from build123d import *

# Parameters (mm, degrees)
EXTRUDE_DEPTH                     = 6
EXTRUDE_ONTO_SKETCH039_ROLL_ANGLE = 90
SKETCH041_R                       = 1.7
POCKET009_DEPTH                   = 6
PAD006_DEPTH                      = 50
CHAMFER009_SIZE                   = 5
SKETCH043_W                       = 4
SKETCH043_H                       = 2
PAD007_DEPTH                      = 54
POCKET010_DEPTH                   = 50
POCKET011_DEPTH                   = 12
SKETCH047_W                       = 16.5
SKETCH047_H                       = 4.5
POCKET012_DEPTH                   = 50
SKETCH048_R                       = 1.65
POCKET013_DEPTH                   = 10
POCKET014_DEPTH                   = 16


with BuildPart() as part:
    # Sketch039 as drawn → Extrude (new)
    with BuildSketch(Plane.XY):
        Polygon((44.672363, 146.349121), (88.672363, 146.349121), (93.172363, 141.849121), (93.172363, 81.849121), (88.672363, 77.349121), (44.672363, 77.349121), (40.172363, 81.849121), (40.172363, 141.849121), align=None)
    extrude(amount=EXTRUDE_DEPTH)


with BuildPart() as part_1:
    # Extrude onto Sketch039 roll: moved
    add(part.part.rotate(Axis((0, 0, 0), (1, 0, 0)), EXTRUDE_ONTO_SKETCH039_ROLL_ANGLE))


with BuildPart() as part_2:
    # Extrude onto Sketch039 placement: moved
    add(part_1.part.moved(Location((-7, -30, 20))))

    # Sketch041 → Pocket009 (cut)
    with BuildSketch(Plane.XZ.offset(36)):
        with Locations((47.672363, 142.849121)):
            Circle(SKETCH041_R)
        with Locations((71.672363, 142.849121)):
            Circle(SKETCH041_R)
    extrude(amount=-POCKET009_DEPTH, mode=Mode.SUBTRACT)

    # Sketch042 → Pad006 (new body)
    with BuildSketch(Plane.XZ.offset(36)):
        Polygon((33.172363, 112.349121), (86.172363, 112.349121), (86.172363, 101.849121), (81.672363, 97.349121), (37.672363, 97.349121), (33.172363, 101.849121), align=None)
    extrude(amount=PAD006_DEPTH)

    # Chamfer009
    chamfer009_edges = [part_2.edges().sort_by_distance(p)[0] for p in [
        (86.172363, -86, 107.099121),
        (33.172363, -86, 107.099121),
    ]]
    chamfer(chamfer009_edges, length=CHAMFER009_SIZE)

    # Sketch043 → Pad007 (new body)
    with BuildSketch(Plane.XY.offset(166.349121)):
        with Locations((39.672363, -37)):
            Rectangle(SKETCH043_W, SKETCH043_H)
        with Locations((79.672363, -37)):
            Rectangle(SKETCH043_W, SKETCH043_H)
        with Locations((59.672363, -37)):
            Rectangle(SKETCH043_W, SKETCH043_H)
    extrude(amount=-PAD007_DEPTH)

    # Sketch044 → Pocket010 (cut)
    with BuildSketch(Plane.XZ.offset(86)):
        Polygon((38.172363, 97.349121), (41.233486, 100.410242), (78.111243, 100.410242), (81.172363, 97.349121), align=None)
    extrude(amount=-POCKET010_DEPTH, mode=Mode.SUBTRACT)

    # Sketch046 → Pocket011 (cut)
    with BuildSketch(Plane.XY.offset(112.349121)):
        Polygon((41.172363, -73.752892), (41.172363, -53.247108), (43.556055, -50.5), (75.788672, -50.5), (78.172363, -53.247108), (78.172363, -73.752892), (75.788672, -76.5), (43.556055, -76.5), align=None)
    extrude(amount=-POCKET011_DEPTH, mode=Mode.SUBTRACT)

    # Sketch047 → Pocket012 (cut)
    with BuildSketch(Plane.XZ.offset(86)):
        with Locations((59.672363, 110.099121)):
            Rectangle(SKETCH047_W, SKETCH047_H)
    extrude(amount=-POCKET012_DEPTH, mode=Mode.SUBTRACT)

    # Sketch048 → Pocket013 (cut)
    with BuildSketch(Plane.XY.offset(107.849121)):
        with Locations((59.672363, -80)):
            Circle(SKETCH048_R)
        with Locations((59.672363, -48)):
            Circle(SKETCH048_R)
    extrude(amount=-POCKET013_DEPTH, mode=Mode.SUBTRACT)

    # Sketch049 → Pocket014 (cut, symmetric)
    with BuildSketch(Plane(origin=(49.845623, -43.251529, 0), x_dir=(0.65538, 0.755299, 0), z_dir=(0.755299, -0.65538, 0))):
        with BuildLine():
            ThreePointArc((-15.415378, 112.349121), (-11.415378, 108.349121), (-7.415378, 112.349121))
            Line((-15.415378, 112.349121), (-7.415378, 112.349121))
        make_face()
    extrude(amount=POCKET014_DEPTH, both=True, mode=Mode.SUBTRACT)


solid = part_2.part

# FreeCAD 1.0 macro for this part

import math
import FreeCAD as App
import Part
import Sketcher
from FreeCAD import Vector
Q = App.Units.Quantity


def edges_at(feature, points):
    """Names of the edges that pass closest to the given points."""
    edges = feature.Shape.Edges
    near = lambda p: min(range(len(edges)), key=lambda i: edges[i].distToShape(Part.Vertex(*p))[0])
    return sorted({f"Edge{near(p) + 1}" for p in points})

doc = App.newDocument("Part")
body = doc.addObject("PartDesign::Body", "Body")

# Sketch on XY plane
sketch1 = doc.addObject("Sketcher::SketchObject", "Sketch")
body.addObject(sketch1)
sketch1.AttachmentSupport = (doc.XY_Plane, [""])
sketch1.MapMode = "FlatFace"
sketch1.addGeometry([
    Part.LineSegment(Vector(89, 146, 0), Vector(45, 146, 0)),  # 0
    Part.LineSegment(Vector(45, 146, 0), Vector(40, 142, 0)),  # 1
    Part.LineSegment(Vector(40, 142, 0), Vector(40, 82, 0)),  # 2
    Part.LineSegment(Vector(40, 82, 0), Vector(45, 77, 0)),  # 3
    Part.LineSegment(Vector(45, 77, 0), Vector(89, 77, 0)),  # 4
    Part.LineSegment(Vector(89, 77, 0), Vector(93, 82, 0)),  # 5
    Part.LineSegment(Vector(93, 82, 0), Vector(93, 142, 0)),  # 6
    Part.LineSegment(Vector(93, 142, 0), Vector(89, 146, 0)),  # 7
], False)
sketch1.addConstraint([
    Sketcher.Constraint("Coincident", 0, 2, 1, 1),
    Sketcher.Constraint("Coincident", 1, 2, 2, 1),
    Sketcher.Constraint("Coincident", 2, 2, 3, 1),
    Sketcher.Constraint("Coincident", 3, 2, 4, 1),
    Sketcher.Constraint("Coincident", 4, 2, 5, 1),
    Sketcher.Constraint("Coincident", 5, 2, 6, 1),
    Sketcher.Constraint("Coincident", 6, 2, 7, 1),
    Sketcher.Constraint("Coincident", 7, 2, 0, 1),
    Sketcher.Constraint("Horizontal", 0),
    Sketcher.Constraint("Vertical", 2),
    Sketcher.Constraint("Horizontal", 4),
    Sketcher.Constraint("Vertical", 6),
    Sketcher.Constraint("Perpendicular", 1, 3),
    Sketcher.Constraint("Perpendicular", 3, 5),
    Sketcher.Constraint("Perpendicular", 5, 7),
    Sketcher.Constraint("Horizontal", 2, 2, 5, 2),
    Sketcher.Constraint("Horizontal", 1, 2, 6, 2),
    Sketcher.Constraint("Vertical", 0, 2, 3, 2),
    Sketcher.Constraint("Vertical", 4, 2, 7, 2),
    Sketcher.Constraint("DistanceX", 0, 2, 0, 1, 44.0),
    Sketcher.Constraint("DistanceY", 2, 2, 2, 1, 60.0),
    Sketcher.Constraint("DistanceY", 3, 2, 0, 2, 69.0),
    Sketcher.Constraint("DistanceY", -1, 1, 0, 2, 146.349121),
    Sketcher.Constraint("DistanceX", -1, 1, 0, 2, 44.672363),
])
pad1 = doc.addObject("PartDesign::Pad", "Pad")
body.addObject(pad1)
pad1.Profile = sketch1
pad1.Length = 6
body2 = doc.addObject("PartDesign::Body", "Body001")
doc.recompute()

body.Placement = App.Placement(Vector(0, 0, 0), App.Rotation(Vector(1, 0, 0), 90))
boolean = doc.addObject("PartDesign::Boolean", "Boolean")
body2.addObject(boolean)
boolean.Type = "Fuse"
boolean.addObjects([body])
body3 = doc.addObject("PartDesign::Body", "Body002")
doc.recompute()

body2.Placement = App.Placement(Vector(-7, -30, 20), App.Rotation(Vector(0, 0, 1), 0))
boolean2 = doc.addObject("PartDesign::Boolean", "Boolean001")
body3.addObject(boolean2)
boolean2.Type = "Fuse"
boolean2.addObjects([body2])

# Sketch on XZ plane
sketch2 = doc.addObject("Sketcher::SketchObject", "Sketch001")
body3.addObject(sketch2)
sketch2.AttachmentSupport = (doc.getObject("XZ_Plane002"), [""])
sketch2.MapMode = "FlatFace"
sketch2.AttachmentOffset = App.Placement(Vector(0, 0, 36), App.Rotation())
sketch2.addGeometry([
    Part.Circle(Vector(47.7, 142.8, 0), Vector(0, 0, 1), 1.7),
    Part.Circle(Vector(71.7, 142.8, 0), Vector(0, 0, 1), 1.7),
], False)
sketch2.addConstraint([
    Sketcher.Constraint("Equal", 0, 1),
    Sketcher.Constraint("Horizontal", 0, 3, 1, 3),
    Sketcher.Constraint("Diameter", 0, 3.4),
    Sketcher.Constraint("DistanceX", 0, 3, 1, 3, 24.0),
    Sketcher.Constraint("DistanceY", -1, 1, 0, 3, 142.849121),
    Sketcher.Constraint("DistanceX", -1, 1, 0, 3, 47.672363),
])
pocket1 = doc.addObject("PartDesign::Pocket", "Pocket")
body3.addObject(pocket1)
pocket1.Profile = sketch2
pocket1.Length = 6

# Sketch on XZ plane
sketch3 = doc.addObject("Sketcher::SketchObject", "Sketch002")
body3.addObject(sketch3)
sketch3.AttachmentSupport = (doc.getObject("XZ_Plane002"), [""])
sketch3.MapMode = "FlatFace"
sketch3.AttachmentOffset = App.Placement(Vector(0, 0, 36), App.Rotation())
sketch3.addGeometry([
    Part.LineSegment(Vector(86, 112, 0), Vector(33, 112, 0)),  # 0
    Part.LineSegment(Vector(33, 112, 0), Vector(33, 102, 0)),  # 1
    Part.LineSegment(Vector(33, 102, 0), Vector(38, 97, 0)),  # 2
    Part.LineSegment(Vector(38, 97, 0), Vector(82, 97, 0)),  # 3
    Part.LineSegment(Vector(82, 97, 0), Vector(86, 102, 0)),  # 4
    Part.LineSegment(Vector(86, 102, 0), Vector(86, 112, 0)),  # 5
], False)
sketch3.addConstraint([
    Sketcher.Constraint("Coincident", 0, 2, 1, 1),
    Sketcher.Constraint("Coincident", 1, 2, 2, 1),
    Sketcher.Constraint("Coincident", 2, 2, 3, 1),
    Sketcher.Constraint("Coincident", 3, 2, 4, 1),
    Sketcher.Constraint("Coincident", 4, 2, 5, 1),
    Sketcher.Constraint("Coincident", 5, 2, 0, 1),
    Sketcher.Constraint("Horizontal", 0),
    Sketcher.Constraint("Vertical", 1),
    Sketcher.Constraint("Horizontal", 3),
    Sketcher.Constraint("Vertical", 5),
    Sketcher.Constraint("Perpendicular", 2, 4),
    Sketcher.Constraint("Horizontal", 1, 2, 4, 2),
    Sketcher.Constraint("Equal", 2, 4),
    Sketcher.Constraint("DistanceX", 0, 2, 0, 1, 53.0),
    Sketcher.Constraint("DistanceX", 3, 1, 3, 2, 44.0),
    Sketcher.Constraint("DistanceY", 1, 2, 1, 1, 10.5),
    Sketcher.Constraint("DistanceY", -1, 1, 0, 2, 112.349121),
    Sketcher.Constraint("DistanceX", -1, 1, 0, 2, 33.172363),
])
pad2 = doc.addObject("PartDesign::Pad", "Pad001")
body3.addObject(pad2)
pad2.Profile = sketch3
pad2.Length = 50
doc.recompute()

chamfer = doc.addObject("PartDesign::Chamfer", "Chamfer")
body3.addObject(chamfer)
chamfer.Base = (pad2, edges_at(pad2, [(86.172, -86, 107.099), (33.172, -86, 107.099)]))
chamfer.Size = 5

# Sketch on XY plane
sketch4 = doc.addObject("Sketcher::SketchObject", "Sketch003")
body3.addObject(sketch4)
sketch4.AttachmentSupport = (doc.getObject("XY_Plane002"), [""])
sketch4.MapMode = "FlatFace"
sketch4.AttachmentOffset = App.Placement(Vector(0, 0, 166.349121), App.Rotation())
sketch4.addGeometry([
    Part.LineSegment(Vector(37.7, -36, 0), Vector(37.7, -38, 0)),  # 0
    Part.LineSegment(Vector(37.7, -38, 0), Vector(41.7, -38, 0)),  # 1
    Part.LineSegment(Vector(41.7, -38, 0), Vector(41.7, -36, 0)),  # 2
    Part.LineSegment(Vector(41.7, -36, 0), Vector(37.7, -36, 0)),  # 3
    Part.LineSegment(Vector(77.7, -36, 0), Vector(77.7, -38, 0)),  # 4
    Part.LineSegment(Vector(77.7, -38, 0), Vector(81.7, -38, 0)),  # 5
    Part.LineSegment(Vector(81.7, -38, 0), Vector(81.7, -36, 0)),  # 6
    Part.LineSegment(Vector(81.7, -36, 0), Vector(77.7, -36, 0)),  # 7
    Part.LineSegment(Vector(57.7, -36, 0), Vector(57.7, -38, 0)),  # 8
    Part.LineSegment(Vector(57.7, -38, 0), Vector(61.7, -38, 0)),  # 9
    Part.LineSegment(Vector(61.7, -38, 0), Vector(61.7, -36, 0)),  # 10
    Part.LineSegment(Vector(61.7, -36, 0), Vector(57.7, -36, 0)),  # 11
], False)
sketch4.addConstraint([
    Sketcher.Constraint("Coincident", 0, 2, 1, 1),
    Sketcher.Constraint("Coincident", 1, 2, 2, 1),
    Sketcher.Constraint("Coincident", 2, 2, 3, 1),
    Sketcher.Constraint("Coincident", 3, 2, 0, 1),
    Sketcher.Constraint("Coincident", 4, 2, 5, 1),
    Sketcher.Constraint("Coincident", 5, 2, 6, 1),
    Sketcher.Constraint("Coincident", 6, 2, 7, 1),
    Sketcher.Constraint("Coincident", 7, 2, 4, 1),
    Sketcher.Constraint("Coincident", 8, 2, 9, 1),
    Sketcher.Constraint("Coincident", 9, 2, 10, 1),
    Sketcher.Constraint("Coincident", 10, 2, 11, 1),
    Sketcher.Constraint("Coincident", 11, 2, 8, 1),
    Sketcher.Constraint("Vertical", 0),
    Sketcher.Constraint("Horizontal", 1),
    Sketcher.Constraint("Vertical", 2),
    Sketcher.Constraint("Horizontal", 3),
    Sketcher.Constraint("Vertical", 4),
    Sketcher.Constraint("Horizontal", 5),
    Sketcher.Constraint("Vertical", 6),
    Sketcher.Constraint("Horizontal", 7),
    Sketcher.Constraint("Vertical", 8),
    Sketcher.Constraint("Horizontal", 9),
    Sketcher.Constraint("Vertical", 10),
    Sketcher.Constraint("Horizontal", 11),
    Sketcher.Constraint("Horizontal", 1, 2, 4, 2),
    Sketcher.Constraint("Horizontal", 3, 2, 6, 2),
    Sketcher.Constraint("Horizontal", 5, 2, 8, 2),
    Sketcher.Constraint("Horizontal", 7, 2, 10, 2),
    Sketcher.Constraint("Equal", 3, 5),
    Sketcher.Constraint("Equal", 7, 9),
    Sketcher.Constraint("DistanceX", 1, 1, 1, 2, 4.0),
    Sketcher.Constraint("DistanceY", 0, 2, 0, 1, 2.0),
    Sketcher.Constraint("DistanceY", 0, 2, -1, 1, 38.0),
    Sketcher.Constraint("DistanceX", 1, 2, 4, 2, 36.0),
    Sketcher.Constraint("DistanceX", 1, 2, 8, 2, 16.0),
    Sketcher.Constraint("DistanceX", -1, 1, 0, 2, 37.672363),
])
pad3 = doc.addObject("PartDesign::Pad", "Pad002")
body3.addObject(pad3)
pad3.Profile = sketch4
pad3.Length = 54
pad3.Reversed = True

# Sketch on XZ plane
sketch5 = doc.addObject("Sketcher::SketchObject", "Sketch004")
body3.addObject(sketch5)
sketch5.AttachmentSupport = (doc.getObject("XZ_Plane002"), [""])
sketch5.MapMode = "FlatFace"
sketch5.AttachmentOffset = App.Placement(Vector(0, 0, 86), App.Rotation())
sketch5.addGeometry([
    Part.LineSegment(Vector(41.2, 100.4, 0), Vector(38.2, 97.3, 0)),
    Part.LineSegment(Vector(38.2, 97.3, 0), Vector(81.2, 97.3, 0)),
    Part.LineSegment(Vector(81.2, 97.3, 0), Vector(78.1, 100.4, 0)),
    Part.LineSegment(Vector(78.1, 100.4, 0), Vector(41.2, 100.4, 0)),
], False)
sketch5.addConstraint([
    Sketcher.Constraint("Coincident", 0, 2, 1, 1),
    Sketcher.Constraint("Coincident", 1, 2, 2, 1),
    Sketcher.Constraint("Coincident", 2, 2, 3, 1),
    Sketcher.Constraint("Coincident", 3, 2, 0, 1),
    Sketcher.Constraint("Horizontal", 1),
    Sketcher.Constraint("Horizontal", 3),
    Sketcher.Constraint("Perpendicular", 0, 2),
    Sketcher.Constraint("DistanceX", 1, 1, 1, 2, 43.0),
    Sketcher.Constraint("Angle", 0, Q("-135.000019 deg")),
    Sketcher.Constraint("Distance", 0, 4.32908),
    Sketcher.Constraint("DistanceY", -1, 1, 0, 2, 97.349121),
    Sketcher.Constraint("DistanceX", -1, 1, 0, 2, 38.172363),
])
pocket2 = doc.addObject("PartDesign::Pocket", "Pocket001")
body3.addObject(pocket2)
pocket2.Profile = sketch5
pocket2.Length = 50

# Sketch on XY plane
sketch6 = doc.addObject("Sketcher::SketchObject", "Sketch005")
body3.addObject(sketch6)
sketch6.AttachmentSupport = (doc.getObject("XY_Plane002"), [""])
sketch6.MapMode = "FlatFace"
sketch6.AttachmentOffset = App.Placement(Vector(0, 0, 112.349121), App.Rotation())
sketch6.addGeometry([
    Part.LineSegment(Vector(41.2, -53.2, 0), Vector(41.2, -73.8, 0)),  # 0
    Part.LineSegment(Vector(41.2, -73.8, 0), Vector(43.6, -76.5, 0)),  # 1
    Part.LineSegment(Vector(43.6, -76.5, 0), Vector(75.8, -76.5, 0)),  # 2
    Part.LineSegment(Vector(75.8, -76.5, 0), Vector(78.2, -73.8, 0)),  # 3
    Part.LineSegment(Vector(78.2, -73.8, 0), Vector(78.2, -53.2, 0)),  # 4
    Part.LineSegment(Vector(78.2, -53.2, 0), Vector(75.8, -50.5, 0)),  # 5
    Part.LineSegment(Vector(75.8, -50.5, 0), Vector(43.6, -50.5, 0)),  # 6
    Part.LineSegment(Vector(43.6, -50.5, 0), Vector(41.2, -53.2, 0)),  # 7
], False)
sketch6.addConstraint([
    Sketcher.Constraint("Coincident", 0, 2, 1, 1),
    Sketcher.Constraint("Coincident", 1, 2, 2, 1),
    Sketcher.Constraint("Coincident", 2, 2, 3, 1),
    Sketcher.Constraint("Coincident", 3, 2, 4, 1),
    Sketcher.Constraint("Coincident", 4, 2, 5, 1),
    Sketcher.Constraint("Coincident", 5, 2, 6, 1),
    Sketcher.Constraint("Coincident", 6, 2, 7, 1),
    Sketcher.Constraint("Coincident", 7, 2, 0, 1),
    Sketcher.Constraint("Vertical", 0),
    Sketcher.Constraint("Horizontal", 2),
    Sketcher.Constraint("Vertical", 4),
    Sketcher.Constraint("Horizontal", 6),
    Sketcher.Constraint("Parallel", 1, 5),
    Sketcher.Constraint("Parallel", 3, 7),
    Sketcher.Constraint("Horizontal", 0, 2, 3, 2),
    Sketcher.Constraint("Horizontal", 4, 2, 7, 2),
    Sketcher.Constraint("Vertical", 2, 2, 5, 2),
    Sketcher.Constraint("Vertical", 1, 2, 6, 2),
    Sketcher.Constraint("DistanceX", 0, 2, 3, 2, 37.0),
    Sketcher.Constraint("DistanceY", 2, 2, 5, 2, 26.0),
    Sketcher.Constraint("DistanceY", 1, 2, -1, 1, 76.5),
    Sketcher.Constraint("DistanceX", 2, 1, 2, 2, 32.232617),
    Sketcher.Constraint("DistanceY", 0, 2, 0, 1, 20.505784),
    Sketcher.Constraint("DistanceX", -1, 1, 0, 2, 41.172363),
])
pocket3 = doc.addObject("PartDesign::Pocket", "Pocket002")
body3.addObject(pocket3)
pocket3.Profile = sketch6
pocket3.Length = 12

# Sketch on XZ plane
sketch7 = doc.addObject("Sketcher::SketchObject", "Sketch006")
body3.addObject(sketch7)
sketch7.AttachmentSupport = (doc.getObject("XZ_Plane002"), [""])
sketch7.MapMode = "FlatFace"
sketch7.AttachmentOffset = App.Placement(Vector(0, 0, 86), App.Rotation())
sketch7.addGeometry([
    Part.LineSegment(Vector(51.4, 112.3, 0), Vector(51.4, 107.8, 0)),
    Part.LineSegment(Vector(51.4, 107.8, 0), Vector(67.9, 107.8, 0)),
    Part.LineSegment(Vector(67.9, 107.8, 0), Vector(67.9, 112.3, 0)),
    Part.LineSegment(Vector(67.9, 112.3, 0), Vector(51.4, 112.3, 0)),
], False)
sketch7.addConstraint([
    Sketcher.Constraint("Coincident", 0, 2, 1, 1),
    Sketcher.Constraint("Coincident", 1, 2, 2, 1),
    Sketcher.Constraint("Coincident", 2, 2, 3, 1),
    Sketcher.Constraint("Coincident", 3, 2, 0, 1),
    Sketcher.Constraint("Vertical", 0),
    Sketcher.Constraint("Horizontal", 1),
    Sketcher.Constraint("Vertical", 2),
    Sketcher.Constraint("Horizontal", 3),
    Sketcher.Constraint("DistanceX", 1, 1, 1, 2, 16.5),
    Sketcher.Constraint("DistanceY", 0, 2, 0, 1, 4.5),
    Sketcher.Constraint("DistanceY", -1, 1, 0, 2, 107.849121),
    Sketcher.Constraint("DistanceX", -1, 1, 0, 2, 51.422363),
])
pocket4 = doc.addObject("PartDesign::Pocket", "Pocket003")
body3.addObject(pocket4)
pocket4.Profile = sketch7
pocket4.Length = 50

# Sketch on XY plane
sketch8 = doc.addObject("Sketcher::SketchObject", "Sketch007")
body3.addObject(sketch8)
sketch8.AttachmentSupport = (doc.getObject("XY_Plane002"), [""])
sketch8.MapMode = "FlatFace"
sketch8.AttachmentOffset = App.Placement(Vector(0, 0, 107.849121), App.Rotation())
sketch8.addGeometry([
    Part.Circle(Vector(59.7, -80, 0), Vector(0, 0, 1), 1.6),
    Part.Circle(Vector(59.7, -48, 0), Vector(0, 0, 1), 1.6),
], False)
sketch8.addConstraint([
    Sketcher.Constraint("Equal", 0, 1),
    Sketcher.Constraint("Vertical", 0, 3, 1, 3),
    Sketcher.Constraint("Diameter", 0, 3.3),
    Sketcher.Constraint("DistanceY", 0, 3, -1, 1, 80.0),
    Sketcher.Constraint("DistanceY", 1, 3, -1, 1, 48.0),
    Sketcher.Constraint("DistanceX", -1, 1, 0, 3, 59.672363),
])
pocket5 = doc.addObject("PartDesign::Pocket", "Pocket004")
body3.addObject(pocket5)
pocket5.Profile = sketch8
pocket5.Length = 10

# Sketch on an angled plane
sketch9 = doc.addObject("Sketcher::SketchObject", "Sketch008")
body3.addObject(sketch9)
sketch9.Placement = App.Placement(Vector(49.845623, -43.251529, 0), App.Rotation(Vector(0.655380156, 0.75529918, 0), Vector(0, 0, 1), Vector(0.75529918, -0.655380156, 0), "ZXY"))
sketch9.addGeometry([
    Part.ArcOfCircle(Part.Circle(Vector(-11.4, 112.3, 0), Vector(0, 0, 1), 4), math.radians(180), math.radians(360)),
    Part.LineSegment(Vector(-7.4, 112.3, 0), Vector(-15.4, 112.3, 0)),
], False)
sketch9.addConstraint([
    Sketcher.Constraint("Coincident", 0, 1, 1, 2),
    Sketcher.Constraint("Coincident", 1, 1, 0, 2),
    Sketcher.Constraint("Horizontal", 1),
    Sketcher.Constraint("Radius", 0, 4.0),
    Sketcher.Constraint("DistanceX", 0, 3, -1, 1, 11.415378),
    Sketcher.Constraint("DistanceY", -1, 1, 0, 3, 112.349121),
    Sketcher.Constraint("DistanceY", -1, 1, 0, 1, 112.349121),
])
pocket6 = doc.addObject("PartDesign::Pocket", "Pocket005")
body3.addObject(pocket6)
pocket6.Profile = sketch9
pocket6.Length = 32
pocket6.Midplane = True

doc.recompute()
